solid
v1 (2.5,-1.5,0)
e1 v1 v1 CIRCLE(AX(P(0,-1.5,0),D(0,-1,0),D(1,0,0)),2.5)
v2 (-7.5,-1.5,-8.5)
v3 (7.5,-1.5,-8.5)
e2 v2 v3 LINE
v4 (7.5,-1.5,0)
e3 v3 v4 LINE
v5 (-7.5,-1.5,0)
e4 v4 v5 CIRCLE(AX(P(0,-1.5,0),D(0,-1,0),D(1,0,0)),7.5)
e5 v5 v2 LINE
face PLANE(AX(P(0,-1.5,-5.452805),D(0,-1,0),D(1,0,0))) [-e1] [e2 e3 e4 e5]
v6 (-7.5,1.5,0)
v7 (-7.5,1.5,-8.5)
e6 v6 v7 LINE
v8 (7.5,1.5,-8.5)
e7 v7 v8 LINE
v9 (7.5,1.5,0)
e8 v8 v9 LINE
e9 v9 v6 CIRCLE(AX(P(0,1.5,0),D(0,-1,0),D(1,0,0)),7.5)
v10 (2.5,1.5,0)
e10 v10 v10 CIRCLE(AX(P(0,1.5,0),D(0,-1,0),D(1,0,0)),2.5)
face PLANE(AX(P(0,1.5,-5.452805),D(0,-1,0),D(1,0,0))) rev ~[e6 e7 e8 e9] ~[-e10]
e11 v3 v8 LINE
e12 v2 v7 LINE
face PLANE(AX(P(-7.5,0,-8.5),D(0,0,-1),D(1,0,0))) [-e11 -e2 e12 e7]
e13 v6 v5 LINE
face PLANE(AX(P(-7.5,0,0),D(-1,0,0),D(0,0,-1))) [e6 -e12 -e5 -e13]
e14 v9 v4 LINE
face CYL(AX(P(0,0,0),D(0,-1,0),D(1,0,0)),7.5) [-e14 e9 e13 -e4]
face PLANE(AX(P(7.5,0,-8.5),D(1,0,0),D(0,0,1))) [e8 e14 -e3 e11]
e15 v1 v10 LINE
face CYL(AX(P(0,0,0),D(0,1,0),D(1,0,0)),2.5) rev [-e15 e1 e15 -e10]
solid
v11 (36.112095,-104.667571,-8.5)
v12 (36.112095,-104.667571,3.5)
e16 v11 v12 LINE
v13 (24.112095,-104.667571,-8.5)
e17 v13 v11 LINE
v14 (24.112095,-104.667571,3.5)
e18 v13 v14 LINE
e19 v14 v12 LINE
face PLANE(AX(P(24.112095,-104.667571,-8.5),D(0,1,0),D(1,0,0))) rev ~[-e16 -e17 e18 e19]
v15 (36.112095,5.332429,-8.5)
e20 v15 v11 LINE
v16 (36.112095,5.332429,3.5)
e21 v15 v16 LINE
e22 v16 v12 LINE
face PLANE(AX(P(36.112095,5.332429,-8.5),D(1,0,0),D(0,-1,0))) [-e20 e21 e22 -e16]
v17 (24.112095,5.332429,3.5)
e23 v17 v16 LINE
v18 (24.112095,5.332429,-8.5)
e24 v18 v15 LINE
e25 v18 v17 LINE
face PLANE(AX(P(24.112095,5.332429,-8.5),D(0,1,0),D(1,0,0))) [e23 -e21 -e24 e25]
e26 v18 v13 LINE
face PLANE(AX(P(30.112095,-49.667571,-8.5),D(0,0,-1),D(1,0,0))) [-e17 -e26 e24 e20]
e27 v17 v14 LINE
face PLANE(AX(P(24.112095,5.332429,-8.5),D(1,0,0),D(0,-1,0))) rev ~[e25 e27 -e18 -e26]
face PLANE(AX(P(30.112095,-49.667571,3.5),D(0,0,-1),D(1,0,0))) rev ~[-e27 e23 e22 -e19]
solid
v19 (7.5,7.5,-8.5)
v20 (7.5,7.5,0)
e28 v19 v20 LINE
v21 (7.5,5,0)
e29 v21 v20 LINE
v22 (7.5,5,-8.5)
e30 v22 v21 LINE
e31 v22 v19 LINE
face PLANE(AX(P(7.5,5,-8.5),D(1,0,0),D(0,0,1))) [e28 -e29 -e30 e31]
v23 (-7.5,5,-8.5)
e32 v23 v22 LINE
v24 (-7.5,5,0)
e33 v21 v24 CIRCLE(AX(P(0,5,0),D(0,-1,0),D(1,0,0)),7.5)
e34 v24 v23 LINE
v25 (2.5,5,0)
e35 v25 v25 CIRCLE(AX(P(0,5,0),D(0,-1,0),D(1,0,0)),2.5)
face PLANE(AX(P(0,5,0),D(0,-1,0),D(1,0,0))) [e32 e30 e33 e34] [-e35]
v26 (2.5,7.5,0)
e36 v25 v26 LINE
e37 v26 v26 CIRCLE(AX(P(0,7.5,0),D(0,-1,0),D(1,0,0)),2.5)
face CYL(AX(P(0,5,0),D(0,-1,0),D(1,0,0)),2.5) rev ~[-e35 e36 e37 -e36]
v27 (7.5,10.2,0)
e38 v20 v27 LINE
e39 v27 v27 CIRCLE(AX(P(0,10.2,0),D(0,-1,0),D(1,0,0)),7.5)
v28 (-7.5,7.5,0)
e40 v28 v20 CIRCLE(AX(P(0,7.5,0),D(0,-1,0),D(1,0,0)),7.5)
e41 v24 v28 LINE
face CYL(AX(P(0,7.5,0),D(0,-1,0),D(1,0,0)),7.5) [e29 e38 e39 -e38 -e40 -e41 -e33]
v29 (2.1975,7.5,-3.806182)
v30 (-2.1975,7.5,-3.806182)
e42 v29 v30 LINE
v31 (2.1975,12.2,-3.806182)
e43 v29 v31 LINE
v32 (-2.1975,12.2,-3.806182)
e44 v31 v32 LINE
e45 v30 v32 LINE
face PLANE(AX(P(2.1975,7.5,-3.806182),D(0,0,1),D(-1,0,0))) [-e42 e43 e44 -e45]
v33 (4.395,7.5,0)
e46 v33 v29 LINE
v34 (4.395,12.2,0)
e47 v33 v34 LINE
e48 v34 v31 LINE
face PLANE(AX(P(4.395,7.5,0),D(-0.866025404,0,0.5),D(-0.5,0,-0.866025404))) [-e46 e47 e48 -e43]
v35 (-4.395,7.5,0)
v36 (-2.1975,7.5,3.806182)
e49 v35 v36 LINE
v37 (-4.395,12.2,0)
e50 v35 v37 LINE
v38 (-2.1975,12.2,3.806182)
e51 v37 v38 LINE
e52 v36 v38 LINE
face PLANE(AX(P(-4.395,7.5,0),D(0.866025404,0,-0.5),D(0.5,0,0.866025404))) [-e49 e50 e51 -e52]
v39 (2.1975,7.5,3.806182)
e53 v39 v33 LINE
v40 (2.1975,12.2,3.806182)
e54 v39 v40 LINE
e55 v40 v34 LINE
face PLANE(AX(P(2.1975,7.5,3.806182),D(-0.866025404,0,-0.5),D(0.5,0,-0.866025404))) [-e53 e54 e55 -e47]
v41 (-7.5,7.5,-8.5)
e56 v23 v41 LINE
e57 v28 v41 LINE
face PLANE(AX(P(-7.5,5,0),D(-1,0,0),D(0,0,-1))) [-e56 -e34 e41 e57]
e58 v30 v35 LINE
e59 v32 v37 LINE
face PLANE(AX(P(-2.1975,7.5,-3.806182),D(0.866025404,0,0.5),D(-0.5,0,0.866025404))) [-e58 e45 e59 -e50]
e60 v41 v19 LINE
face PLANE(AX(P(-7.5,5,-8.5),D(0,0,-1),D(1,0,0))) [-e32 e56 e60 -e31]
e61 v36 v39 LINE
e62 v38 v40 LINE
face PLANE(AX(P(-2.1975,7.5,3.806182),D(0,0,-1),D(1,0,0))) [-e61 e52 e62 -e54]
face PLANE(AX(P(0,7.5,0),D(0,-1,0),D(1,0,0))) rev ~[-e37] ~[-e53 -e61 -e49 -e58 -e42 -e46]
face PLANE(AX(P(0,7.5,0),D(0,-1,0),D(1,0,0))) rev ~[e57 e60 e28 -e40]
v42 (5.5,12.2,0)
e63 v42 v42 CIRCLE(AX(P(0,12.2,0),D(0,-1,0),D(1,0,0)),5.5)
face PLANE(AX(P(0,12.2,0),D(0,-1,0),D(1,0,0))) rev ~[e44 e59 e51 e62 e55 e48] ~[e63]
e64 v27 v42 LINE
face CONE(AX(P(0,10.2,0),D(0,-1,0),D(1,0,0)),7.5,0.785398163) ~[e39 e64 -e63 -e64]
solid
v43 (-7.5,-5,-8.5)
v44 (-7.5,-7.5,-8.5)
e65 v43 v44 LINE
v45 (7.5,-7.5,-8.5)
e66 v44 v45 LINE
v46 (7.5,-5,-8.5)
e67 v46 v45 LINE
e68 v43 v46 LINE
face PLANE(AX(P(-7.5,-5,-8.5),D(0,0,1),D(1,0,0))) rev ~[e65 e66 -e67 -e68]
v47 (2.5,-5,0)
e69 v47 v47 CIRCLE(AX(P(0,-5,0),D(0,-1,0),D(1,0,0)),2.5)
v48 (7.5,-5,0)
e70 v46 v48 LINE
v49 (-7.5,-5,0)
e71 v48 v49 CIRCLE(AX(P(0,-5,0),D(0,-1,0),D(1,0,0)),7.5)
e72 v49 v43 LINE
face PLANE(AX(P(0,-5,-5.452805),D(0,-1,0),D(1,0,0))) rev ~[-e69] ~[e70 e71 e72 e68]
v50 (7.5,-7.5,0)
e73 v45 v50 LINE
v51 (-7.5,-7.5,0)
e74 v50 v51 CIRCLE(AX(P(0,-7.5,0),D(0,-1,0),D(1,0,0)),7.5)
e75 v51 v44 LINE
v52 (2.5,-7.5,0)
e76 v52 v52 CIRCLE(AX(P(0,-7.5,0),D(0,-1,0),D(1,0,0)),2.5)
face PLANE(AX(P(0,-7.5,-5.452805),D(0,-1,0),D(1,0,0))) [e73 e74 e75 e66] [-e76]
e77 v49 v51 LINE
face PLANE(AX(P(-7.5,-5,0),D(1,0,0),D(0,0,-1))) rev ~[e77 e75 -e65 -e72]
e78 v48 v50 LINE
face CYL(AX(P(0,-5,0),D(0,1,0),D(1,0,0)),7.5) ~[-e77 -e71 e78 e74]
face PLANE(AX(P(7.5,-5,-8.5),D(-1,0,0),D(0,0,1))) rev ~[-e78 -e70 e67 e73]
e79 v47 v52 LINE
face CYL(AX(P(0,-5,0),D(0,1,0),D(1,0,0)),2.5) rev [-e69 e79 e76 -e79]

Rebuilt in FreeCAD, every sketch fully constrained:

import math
import FreeCAD as App
import Part
import Sketcher
from FreeCAD import Vector
Q = App.Units.Quantity


def edges_at(feature, points):
    """Names of the edges that pass closest to the given points."""
    edges = feature.Shape.Edges
    near = lambda p: min(range(len(edges)), key=lambda i: edges[i].distToShape(Part.Vertex(*p))[0])
    return sorted({f"Edge{near(p) + 1}" for p in points})


def add_polygon(sketch, points):
    """Adds a closed chain of lines whose ends are joined by coincident constraints."""
    first, n = sketch.GeometryCount, len(points)
    for a, b in zip(points, points[1:] + points[:1]):
        sketch.addGeometry(Part.LineSegment(App.Vector(*a, 0), App.Vector(*b, 0)), False)
    for i in range(n):
        sketch.addConstraint(Sketcher.Constraint("Coincident", first + i, 2, first + (i + 1) % n, 1))

doc = App.newDocument("Part")
body = doc.addObject("PartDesign::Body", "Body")

# Sketch on XZ plane
sketch1 = body.newObject("Sketcher::SketchObject", "Sketch")
sketch1.AttachmentSupport = (doc.getObject("XZ_Plane"), [""])
sketch1.MapMode = "FlatFace"
sketch1.addGeometry([
    Part.LineSegment(Vector(7.5, -8.5, 0), Vector(7.5, 0, 0)),  # 0
    Part.ArcOfCircle(Part.Circle(Vector(0, 0, 0), Vector(0, 0, 1), 7.5), math.radians(0), math.radians(180)),  # 1
    Part.LineSegment(Vector(-7.5, 0, 0), Vector(-7.5, -8.5, 0)),  # 2
    Part.LineSegment(Vector(-7.5, -8.5, 0), Vector(7.5, -8.5, 0)),  # 3
    Part.Circle(Vector(0, 0, 0), Vector(0, 0, 1), 2.5),  # 4
], False)
sketch1.addConstraint([
    Sketcher.Constraint("Tangent", 0, 2, 1, 1),
    Sketcher.Constraint("Tangent", 1, 2, 2, 1),
    Sketcher.Constraint("Coincident", 2, 2, 3, 1),
    Sketcher.Constraint("Coincident", 3, 2, 0, 1),
    Sketcher.Constraint("Vertical", 0),
    Sketcher.Constraint("Vertical", 2),
    Sketcher.Constraint("Horizontal", 3),
    Sketcher.Constraint("Coincident", 1, 3, -1, 1),
    Sketcher.Constraint("Coincident", 4, 3, -1, 1),
    Sketcher.Constraint("Diameter", 4, 5.0),
    Sketcher.Constraint("Radius", 1, 7.5),
    Sketcher.Constraint("DistanceY", 0, 1, 0, 2, 8.5),
])
pad1 = body.newObject("PartDesign::Pad", "Pad")
pad1.Profile = sketch1
pad1.Length = 3
pad1.Midplane = True
body2 = doc.addObject("PartDesign::Body", "Body001")

# Sketch on XZ plane
sketch2 = body2.newObject("Sketcher::SketchObject", "Sketch001")
sketch2.AttachmentSupport = (doc.getObject("XZ_Plane001"), [""])
sketch2.MapMode = "FlatFace"
sketch2.AttachmentOffset = App.Placement(Vector(0, 0, 5), App.Rotation())
sketch2.addGeometry([
    Part.LineSegment(Vector(7.5, -8.5, 0), Vector(7.5, 0, 0)),  # 0
    Part.ArcOfCircle(Part.Circle(Vector(0, 0, 0), Vector(0, 0, 1), 7.5), math.radians(0), math.radians(180)),  # 1
    Part.LineSegment(Vector(-7.5, 0, 0), Vector(-7.5, -8.5, 0)),  # 2
    Part.LineSegment(Vector(-7.5, -8.5, 0), Vector(7.5, -8.5, 0)),  # 3
    Part.Circle(Vector(0, 0, 0), Vector(0, 0, 1), 2.5),  # 4
], False)
sketch2.addConstraint([
    Sketcher.Constraint("Tangent", 0, 2, 1, 1),
    Sketcher.Constraint("Tangent", 1, 2, 2, 1),
    Sketcher.Constraint("Coincident", 2, 2, 3, 1),
    Sketcher.Constraint("Coincident", 3, 2, 0, 1),
    Sketcher.Constraint("Vertical", 0),
    Sketcher.Constraint("Vertical", 2),
    Sketcher.Constraint("Horizontal", 3),
    Sketcher.Constraint("Coincident", 1, 3, -1, 1),
    Sketcher.Constraint("Coincident", 4, 3, -1, 1),
    Sketcher.Constraint("Diameter", 4, 5.0),
    Sketcher.Constraint("Radius", 1, 7.5),
    Sketcher.Constraint("DistanceY", 0, 1, 0, 2, 8.5),
])
pad2 = body2.newObject("PartDesign::Pad", "Pad001")
pad2.Profile = sketch2
pad2.Length = 2.5
body3 = doc.addObject("PartDesign::Body", "Body002")

# Sketch on XZ plane
sketch3 = body3.newObject("Sketcher::SketchObject", "Sketch002")
sketch3.AttachmentSupport = (doc.getObject("XZ_Plane002"), [""])
sketch3.MapMode = "FlatFace"
sketch3.AttachmentOffset = App.Placement(Vector(0, 0, -5), App.Rotation())
sketch3.addGeometry([
    Part.ArcOfCircle(Part.Circle(Vector(0, 0, 0), Vector(0, 0, 1), 7.5), math.radians(0), math.radians(180)),  # 0
    Part.LineSegment(Vector(-7.5, 0, 0), Vector(-7.5, -8.5, 0)),  # 1
    Part.LineSegment(Vector(-7.5, -8.5, 0), Vector(7.5, -8.5, 0)),  # 2
    Part.LineSegment(Vector(7.5, -8.5, 0), Vector(7.5, 0, 0)),  # 3
    Part.Circle(Vector(0, 0, 0), Vector(0, 0, 1), 2.5),  # 4
], False)
sketch3.addConstraint([
    Sketcher.Constraint("Tangent", 0, 2, 1, 1),
    Sketcher.Constraint("Coincident", 1, 2, 2, 1),
    Sketcher.Constraint("Coincident", 2, 2, 3, 1),
    Sketcher.Constraint("Tangent", 3, 2, 0, 1),
    Sketcher.Constraint("Vertical", 1),
    Sketcher.Constraint("Horizontal", 2),
    Sketcher.Constraint("Vertical", 3),
    Sketcher.Constraint("Coincident", 0, 3, -1, 1),
    Sketcher.Constraint("Coincident", 4, 3, -1, 1),
    Sketcher.Constraint("Diameter", 4, 5.0),
    Sketcher.Constraint("Radius", 0, 7.5),
    Sketcher.Constraint("DistanceY", 1, 2, 1, 1, 8.5),
])
pad3 = body3.newObject("PartDesign::Pad", "Pad002")
pad3.Profile = sketch3
pad3.Length = 2.5
pad3.Reversed = True

# Sketch on XZ plane
sketch4 = body3.newObject("Sketcher::SketchObject", "Sketch003")
sketch4.AttachmentSupport = (doc.getObject("XZ_Plane002"), [""])
sketch4.MapMode = "FlatFace"
sketch4.AttachmentOffset = App.Placement(Vector(0, 0, -7.5), App.Rotation())
sketch4.addGeometry(Part.Circle(Vector(0, 0, 0), Vector(0, 0, 1), 7.5), False)  # 0
add_polygon(sketch4, [(-2.2, 3.8), (2.2, 3.8), (4.4, 0), (2.2, -3.8), (-2.2, -3.8), (-4.4, 0)])  # lines 1-6
sketch4.addConstraint([
    Sketcher.Constraint("Horizontal", 1),
    Sketcher.Constraint("Horizontal", 4),
    Sketcher.Constraint("Coincident", 0, 3, -1, 1),
    Sketcher.Constraint("Symmetric", 1, 2, 4, 2, -1, 1),
    Sketcher.Constraint("Symmetric", 2, 2, 5, 2, -1, 1),
    Sketcher.Constraint("PointOnObject", 2, 2, -1),
    Sketcher.Constraint("Parallel", 3, 6),
    Sketcher.Constraint("Vertical", 1, 2, 3, 2),
    Sketcher.Constraint("Diameter", 0, 15.0),
    Sketcher.Constraint("Angle", 2, Q("-60 deg")),
    Sketcher.Constraint("DistanceX", 1, 1, 1, 2, 4.395),
    Sketcher.Constraint("DistanceX", 5, 2, 2, 2, 8.79),
])
pad4 = body3.newObject("PartDesign::Pad", "Pad003")
pad4.Profile = sketch4
pad4.Length = 4.7
pad4.Reversed = True
doc.recompute()

chamfer = body3.newObject("PartDesign::Chamfer", "Chamfer")
chamfer.Base = (pad4, edges_at(pad4, [(-7.5, 12.2, 0)]))
chamfer.Size = 2
body4 = doc.addObject("PartDesign::Body", "Body003")

# Sketch on XY plane
sketch5 = body4.newObject("Sketcher::SketchObject", "Sketch004")
sketch5.AttachmentSupport = (doc.getObject("XY_Plane003"), [""])
sketch5.MapMode = "FlatFace"
sketch5.AttachmentOffset = App.Placement(Vector(0, 0, -8.5), App.Rotation())
add_polygon(sketch5, [(24, -105), (24, 5), (36, 5), (36, -105)])  # lines 0-3
sketch5.addConstraint([
    Sketcher.Constraint("Vertical", 0),
    Sketcher.Constraint("Horizontal", 1),
    Sketcher.Constraint("Vertical", 2),
    Sketcher.Constraint("Horizontal", 3),
    Sketcher.Constraint("DistanceX", 1, 1, 1, 2, 12.0),
    Sketcher.Constraint("DistanceY", 0, 1, 0, 2, 110.0),
    Sketcher.Constraint("DistanceY", -1, 1, 0, 2, 5.332429),
    Sketcher.Constraint("DistanceX", -1, 1, 0, 2, 24.112095),
])
pad5 = body4.newObject("PartDesign::Pad", "Pad004")
pad5.Profile = sketch5
pad5.Length = 12

doc.recompute()
